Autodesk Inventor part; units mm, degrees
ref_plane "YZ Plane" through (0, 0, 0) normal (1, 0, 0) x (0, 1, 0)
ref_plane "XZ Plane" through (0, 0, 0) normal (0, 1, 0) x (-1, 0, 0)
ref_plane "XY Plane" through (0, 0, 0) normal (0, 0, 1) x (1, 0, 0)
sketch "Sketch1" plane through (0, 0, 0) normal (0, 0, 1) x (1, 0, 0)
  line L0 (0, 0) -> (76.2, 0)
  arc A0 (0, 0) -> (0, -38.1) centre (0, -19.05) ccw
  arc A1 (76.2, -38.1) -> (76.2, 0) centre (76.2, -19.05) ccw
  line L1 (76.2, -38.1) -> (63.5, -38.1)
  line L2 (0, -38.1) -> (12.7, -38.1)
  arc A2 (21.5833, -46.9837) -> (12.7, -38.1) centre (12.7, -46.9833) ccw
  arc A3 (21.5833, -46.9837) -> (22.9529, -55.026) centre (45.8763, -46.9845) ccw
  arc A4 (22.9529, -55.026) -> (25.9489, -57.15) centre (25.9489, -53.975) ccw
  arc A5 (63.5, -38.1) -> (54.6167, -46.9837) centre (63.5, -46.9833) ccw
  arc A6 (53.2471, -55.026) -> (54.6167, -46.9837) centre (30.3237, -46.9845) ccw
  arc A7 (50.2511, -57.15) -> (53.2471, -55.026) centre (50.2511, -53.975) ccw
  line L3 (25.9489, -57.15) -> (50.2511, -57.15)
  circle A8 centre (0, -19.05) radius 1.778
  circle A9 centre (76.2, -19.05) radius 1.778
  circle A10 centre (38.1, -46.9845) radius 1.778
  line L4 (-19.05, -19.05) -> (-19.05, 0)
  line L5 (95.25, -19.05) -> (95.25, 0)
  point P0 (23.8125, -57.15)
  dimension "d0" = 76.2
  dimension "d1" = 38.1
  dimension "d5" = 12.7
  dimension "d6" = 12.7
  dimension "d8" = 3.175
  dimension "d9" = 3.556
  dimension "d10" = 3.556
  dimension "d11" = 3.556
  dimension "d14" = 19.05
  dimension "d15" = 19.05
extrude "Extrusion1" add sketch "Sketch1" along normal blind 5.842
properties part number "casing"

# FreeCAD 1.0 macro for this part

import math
import FreeCAD as App
import Part
import Sketcher
Q = App.Units.Quantity

doc = App.newDocument("Part")
body = doc.addObject("PartDesign::Body", "Body")

sketch1 = doc.addObject("Sketcher::SketchObject", "Sketch")
body.addObject(sketch1)
sketch1.AttachmentSupport = (doc.XY_Plane, [""])
sketch1.MapMode = "FlatFace"
sketch1.addGeometry(Part.LineSegment(App.Vector(76.2, 0, 0), App.Vector(0, 0, 0)), False)
sketch1.addGeometry(Part.ArcOfCircle(Part.Circle(App.Vector(0, -19.05, 0), App.Vector(0, 0, 1), 19.05), math.radians(90), math.radians(270)), False)
sketch1.addGeometry(Part.LineSegment(App.Vector(0, -38.1, 0), App.Vector(12.7, -38.1, 0)), False)
sketch1.addGeometry(Part.ArcOfCircle(Part.Circle(App.Vector(12.7, -46.9833, 0), App.Vector(0, 0, 1), 8.8833), math.radians(-0.00258), math.radians(90)), False)
sketch1.addGeometry(Part.ArcOfCircle(Part.Circle(App.Vector(45.874952, -46.984614, 0), App.Vector(0, 0, 1), 24.291652), math.radians(179.997844), math.radians(199.331605)), False)
sketch1.addGeometry(Part.ArcOfCircle(Part.Circle(App.Vector(25.9489, -53.975, 0), App.Vector(0, 0, 1), 3.174999), math.radians(-160.669075), math.radians(-90)), False)
sketch1.addGeometry(Part.LineSegment(App.Vector(25.9489, -57.15, 0), App.Vector(50.2511, -57.15, 0)), False)
sketch1.addGeometry(Part.ArcOfCircle(Part.Circle(App.Vector(50.2511, -53.975, 0), App.Vector(0, 0, 1), 3.175), math.radians(-90), math.radians(-19.330925)), False)
sketch1.addGeometry(Part.ArcOfCircle(Part.Circle(App.Vector(30.32239, -46.984161, 0), App.Vector(0, 0, 1), 24.29431), math.radians(-19.330538), math.radians(0.001088)), False)
sketch1.addGeometry(Part.ArcOfCircle(Part.Circle(App.Vector(63.5, -46.9833, 0), App.Vector(0, 0, 1), 8.8833), math.radians(90), math.radians(180.00258)), False)
sketch1.addGeometry(Part.LineSegment(App.Vector(63.5, -38.1, 0), App.Vector(76.2, -38.1, 0)), False)
sketch1.addGeometry(Part.ArcOfCircle(Part.Circle(App.Vector(76.2, -19.05, 0), App.Vector(0, 0, 1), 19.05), math.radians(-90), math.radians(90)), False)
sketch1.addGeometry(Part.Circle(App.Vector(38.1, -46.9845, 0), App.Vector(0, 0, 1), 1.778), False)
sketch1.addGeometry(Part.Circle(App.Vector(0, -19.05, 0), App.Vector(0, 0, 1), 1.778), False)
sketch1.addGeometry(Part.Circle(App.Vector(76.2, -19.05, 0), App.Vector(0, 0, 1), 1.778), False)
sketch1.addConstraint(Sketcher.Constraint("Coincident", 0, 2, 1, 1))
sketch1.addConstraint(Sketcher.Constraint("Coincident", 1, 2, 2, 1))
sketch1.addConstraint(Sketcher.Constraint("Coincident", 2, 2, 3, 2))
sketch1.addConstraint(Sketcher.Constraint("Coincident", 3, 1, 4, 1))
sketch1.addConstraint(Sketcher.Constraint("Coincident", 4, 2, 5, 1))
sketch1.addConstraint(Sketcher.Constraint("Coincident", 5, 2, 6, 1))
sketch1.addConstraint(Sketcher.Constraint("Coincident", 6, 2, 7, 1))
sketch1.addConstraint(Sketcher.Constraint("Coincident", 7, 2, 8, 1))
sketch1.addConstraint(Sketcher.Constraint("Coincident", 8, 2, 9, 2))
sketch1.addConstraint(Sketcher.Constraint("Coincident", 9, 1, 10, 1))
sketch1.addConstraint(Sketcher.Constraint("Coincident", 10, 2, 11, 1))
sketch1.addConstraint(Sketcher.Constraint("Coincident", 11, 2, 0, 1))
sketch1.addConstraint(Sketcher.Constraint("Horizontal", 0))
sketch1.addConstraint(Sketcher.Constraint("Horizontal", 2))
sketch1.addConstraint(Sketcher.Constraint("Horizontal", 6))
sketch1.addConstraint(Sketcher.Constraint("Horizontal", 10))
sketch1.addConstraint(Sketcher.Constraint("Coincident", 0, 2, -1, 1))
sketch1.addConstraint(Sketcher.Constraint("Coincident", 13, 3, 1, 3))
sketch1.addConstraint(Sketcher.Constraint("Coincident", 14, 3, 11, 3))
sketch1.addConstraint(Sketcher.Constraint("PointOnObject", 1, 3, -2))
sketch1.addConstraint(Sketcher.Constraint("PointOnObject", 1, 2, -2))
sketch1.addConstraint(Sketcher.Constraint("Diameter", 12, Q("0.14 in")))
sketch1.addConstraint(Sketcher.Constraint("Diameter", 13, Q("0.14 in")))
sketch1.addConstraint(Sketcher.Constraint("Diameter", 14, Q("0.14 in")))
sketch1.addConstraint(Sketcher.Constraint("DistanceX", 0, 2, 0, 1, Q("3 in")))
sketch1.addConstraint(Sketcher.Constraint("Radius", 1, Q("0.75 in")))
sketch1.addConstraint(Sketcher.Constraint("Radius", 11, Q("0.75 in")))
sketch1.addConstraint(Sketcher.Constraint("DistanceX", 2, 1, 2, 2, Q("0.5 in")))
sketch1.addConstraint(Sketcher.Constraint("DistanceX", 10, 1, 10, 2, Q("0.5 in")))
sketch1.addConstraint(Sketcher.Constraint("DistanceX", -1, 1, 11, 3, Q("3 in")))
sketch1.addConstraint(Sketcher.Constraint("DistanceX", -1, 1, 10, 2, Q("3 in")))
sketch1.addConstraint(Sketcher.Constraint("Radius", 5, Q("0.125 in")))
sketch1.addConstraint(Sketcher.Constraint("Radius", 7, Q("0.125 in")))
sketch1.addConstraint(Sketcher.Constraint("DistanceX", -1, 1, 3, 3, Q("0.5 in")))
sketch1.addConstraint(Sketcher.Constraint("DistanceX", -1, 1, 12, 3, Q("1.5 in")))
sketch1.addConstraint(Sketcher.Constraint("DistanceX", 9, 3, 11, 3, Q("0.5 in")))
sketch1.addConstraint(Sketcher.Constraint("DistanceY", 4, 3, 12, 3, Q("0 in")))
sketch1.addConstraint(Sketcher.Constraint("DistanceY", 5, 2, -1, 1, Q("2.25 in")))
sketch1.addConstraint(Sketcher.Constraint("Radius", 3, 8.8833))
sketch1.addConstraint(Sketcher.Constraint("Radius", 4, 24.2917))
sketch1.addConstraint(Sketcher.Constraint("Radius", 8, 24.2943))
sketch1.addConstraint(Sketcher.Constraint("Radius", 9, 8.8833))
sketch1.addConstraint(Sketcher.Constraint("DistanceX", 3, 1, 5, 3, Q("0.171874 in")))
sketch1.addConstraint(Sketcher.Constraint("DistanceX", 3, 1, 5, 2, Q("0.171874 in")))
sketch1.addConstraint(Sketcher.Constraint("DistanceX", 7, 3, 8, 2, Q("0.171874 in")))
sketch1.addConstraint(Sketcher.Constraint("DistanceX", 6, 2, 8, 2, Q("0.171874 in")))
sketch1.addConstraint(Sketcher.Constraint("DistanceY", 4, 2, 8, 3, Q("0.3166 in")))
sketch1.addConstraint(Sketcher.Constraint("DistanceY", 7, 2, 4, 3, Q("0.3166 in")))
sketch1.addConstraint(Sketcher.Constraint("DistanceY", 3, 1, -1, 1, 46.9837))
sketch1.addConstraint(Sketcher.Constraint("DistanceY", 8, 2, -1, 1, 46.9837))
pad1 = doc.addObject("PartDesign::Pad", "Pad")
body.addObject(pad1)
pad1.Profile = sketch1
pad1.Length = Q("0.23 in")

doc.recompute()
